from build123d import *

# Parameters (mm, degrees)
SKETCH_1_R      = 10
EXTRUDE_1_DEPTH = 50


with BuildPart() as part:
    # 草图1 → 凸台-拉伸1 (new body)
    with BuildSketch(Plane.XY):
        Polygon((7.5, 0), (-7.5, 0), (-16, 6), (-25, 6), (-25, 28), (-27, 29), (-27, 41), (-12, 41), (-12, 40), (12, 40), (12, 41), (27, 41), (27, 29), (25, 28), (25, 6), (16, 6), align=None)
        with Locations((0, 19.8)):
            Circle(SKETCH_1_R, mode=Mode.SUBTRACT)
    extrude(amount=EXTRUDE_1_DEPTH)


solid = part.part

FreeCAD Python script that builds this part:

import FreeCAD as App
import Part
import Sketcher

V = App.Vector

doc = App.newDocument("Part")
params = doc.addObject("Spreadsheet::Sheet", "Params")
for row, (alias, value) in enumerate([
    ("sketch1_diameter", "20 mm"),
    ("sketch1_width", "15 mm"),
    ("sketch1_width2", "9 mm"),
    ("sketch1_width3", "24 mm"),
    ("sketch1_height", "22 mm"),
    ("pad1_length", "50 mm"),
], start=1):
    params.set(f"A{row}", alias)
    params.set(f"B{row}", "=" + value)
    params.setAlias(f"B{row}", alias)

body = doc.addObject("PartDesign::Body", "Body")

# Sketch on XY plane
sketch1 = body.newObject("Sketcher::SketchObject", "Sketch")
sketch1.AttachmentSupport = (doc.getObject("XY_Plane"), [""])
sketch1.MapMode = "FlatFace"
sketch1.addGeometry(Part.LineSegment(V(-7.5, 0, 0), V(7.5, 0, 0)), False)
sketch1.addGeometry(Part.LineSegment(V(7.5, 0, 0), V(16, 6, 0)), False)
sketch1.addGeometry(Part.LineSegment(V(16, 6, 0), V(25, 6, 0)), False)
sketch1.addGeometry(Part.LineSegment(V(25, 6, 0), V(25, 28, 0)), False)
sketch1.addGeometry(Part.LineSegment(V(25, 28, 0), V(27, 29, 0)), False)
sketch1.addGeometry(Part.LineSegment(V(27, 29, 0), V(27, 41, 0)), False)
sketch1.addGeometry(Part.LineSegment(V(27, 41, 0), V(12, 41, 0)), False)
sketch1.addGeometry(Part.LineSegment(V(12, 41, 0), V(12, 40, 0)), False)
sketch1.addGeometry(Part.LineSegment(V(12, 40, 0), V(-12, 40, 0)), False)
sketch1.addGeometry(Part.LineSegment(V(-12, 40, 0), V(-12, 41, 0)), False)
sketch1.addGeometry(Part.LineSegment(V(-12, 41, 0), V(-27, 41, 0)), False)
sketch1.addGeometry(Part.LineSegment(V(-27, 41, 0), V(-27, 29, 0)), False)
sketch1.addGeometry(Part.LineSegment(V(-27, 29, 0), V(-25, 28, 0)), False)
sketch1.addGeometry(Part.LineSegment(V(-25, 28, 0), V(-25, 6, 0)), False)
sketch1.addGeometry(Part.LineSegment(V(-25, 6, 0), V(-16, 6, 0)), False)
sketch1.addGeometry(Part.LineSegment(V(-16, 6, 0), V(-7.5, 0, 0)), False)
sketch1.addGeometry(Part.Circle(V(0, 19.8, 0), V(0, 0, 1), 10), False)
sketch1.addConstraint(Sketcher.Constraint("Coincident", 0, 2, 1, 1))
sketch1.addConstraint(Sketcher.Constraint("Coincident", 1, 2, 2, 1))
sketch1.addConstraint(Sketcher.Constraint("Coincident", 2, 2, 3, 1))
sketch1.addConstraint(Sketcher.Constraint("Coincident", 3, 2, 4, 1))
sketch1.addConstraint(Sketcher.Constraint("Coincident", 4, 2, 5, 1))
sketch1.addConstraint(Sketcher.Constraint("Coincident", 5, 2, 6, 1))
sketch1.addConstraint(Sketcher.Constraint("Coincident", 6, 2, 7, 1))
sketch1.addConstraint(Sketcher.Constraint("Coincident", 7, 2, 8, 1))
sketch1.addConstraint(Sketcher.Constraint("Coincident", 8, 2, 9, 1))
sketch1.addConstraint(Sketcher.Constraint("Coincident", 9, 2, 10, 1))
sketch1.addConstraint(Sketcher.Constraint("Coincident", 10, 2, 11, 1))
sketch1.addConstraint(Sketcher.Constraint("Coincident", 11, 2, 12, 1))
sketch1.addConstraint(Sketcher.Constraint("Coincident", 12, 2, 13, 1))
sketch1.addConstraint(Sketcher.Constraint("Coincident", 13, 2, 14, 1))
sketch1.addConstraint(Sketcher.Constraint("Coincident", 14, 2, 15, 1))
sketch1.addConstraint(Sketcher.Constraint("Coincident", 15, 2, 0, 1))
sketch1.addConstraint(Sketcher.Constraint("Horizontal", 0))
sketch1.addConstraint(Sketcher.Constraint("Horizontal", 2))
sketch1.addConstraint(Sketcher.Constraint("Vertical", 3))
sketch1.addConstraint(Sketcher.Constraint("Vertical", 5))
sketch1.addConstraint(Sketcher.Constraint("Horizontal", 6))
sketch1.addConstraint(Sketcher.Constraint("Vertical", 7))
sketch1.addConstraint(Sketcher.Constraint("Horizontal", 8))
sketch1.addConstraint(Sketcher.Constraint("Vertical", 9))
sketch1.addConstraint(Sketcher.Constraint("Horizontal", 10))
sketch1.addConstraint(Sketcher.Constraint("Vertical", 11))
sketch1.addConstraint(Sketcher.Constraint("Vertical", 13))
sketch1.addConstraint(Sketcher.Constraint("Horizontal", 14))
sketch1.addConstraint(Sketcher.Constraint("Symmetric", 0, 2, 15, 2, -1, 1))
sketch1.addConstraint(Sketcher.Constraint("Symmetric", 6, 2, 9, 2, -2))
sketch1.addConstraint(Sketcher.Constraint("Symmetric", 4, 2, 11, 2, -2))
sketch1.addConstraint(Sketcher.Constraint("Symmetric", 3, 2, 12, 2, -2))
sketch1.addConstraint(Sketcher.Constraint("Symmetric", 1, 2, 14, 2, -2))
sketch1.addConstraint(Sketcher.Constraint("PointOnObject", 16, 3, -2))
sketch1.addConstraint(Sketcher.Constraint("Equal", 0, 6))
sketch1.addConstraint(Sketcher.Constraint("Diameter", 16, 20.0))
sketch1.addConstraint(Sketcher.Constraint("DistanceX", 0, 1, 0, 2, 15.0))
sketch1.addConstraint(Sketcher.Constraint("DistanceX", 2, 1, 2, 2, 9.0))
sketch1.addConstraint(Sketcher.Constraint("DistanceX", 8, 2, 8, 1, 24.0))
sketch1.addConstraint(Sketcher.Constraint("DistanceY", 3, 1, 3, 2, 22.0))
sketch1.addConstraint(Sketcher.Constraint("DistanceY", 5, 1, 5, 2, 12.0))
sketch1.addConstraint(Sketcher.Constraint("DistanceY", 7, 2, 7, 1, 1.0))
sketch1.addConstraint(Sketcher.Constraint("DistanceX", -1, 1, 1, 2, 16.0))
sketch1.addConstraint(Sketcher.Constraint("DistanceY", -1, 1, 1, 2, 6.0))
sketch1.addConstraint(Sketcher.Constraint("DistanceY", -1, 1, 4, 2, 29.0))
sketch1.addConstraint(Sketcher.Constraint("DistanceY", -1, 1, 16, 3, 19.8))
sketch1.setExpression("Constraints[35]", "Params.sketch1_diameter")
sketch1.setExpression("Constraints[36]", "Params.sketch1_width")
sketch1.setExpression("Constraints[37]", "Params.sketch1_width2")
sketch1.setExpression("Constraints[38]", "Params.sketch1_width3")
sketch1.setExpression("Constraints[39]", "Params.sketch1_height")
pad1 = body.newObject("PartDesign::Pad", "Pad")
pad1.Profile = sketch1
pad1.setExpression("Length", "Params.pad1_length")

doc.recompute()
